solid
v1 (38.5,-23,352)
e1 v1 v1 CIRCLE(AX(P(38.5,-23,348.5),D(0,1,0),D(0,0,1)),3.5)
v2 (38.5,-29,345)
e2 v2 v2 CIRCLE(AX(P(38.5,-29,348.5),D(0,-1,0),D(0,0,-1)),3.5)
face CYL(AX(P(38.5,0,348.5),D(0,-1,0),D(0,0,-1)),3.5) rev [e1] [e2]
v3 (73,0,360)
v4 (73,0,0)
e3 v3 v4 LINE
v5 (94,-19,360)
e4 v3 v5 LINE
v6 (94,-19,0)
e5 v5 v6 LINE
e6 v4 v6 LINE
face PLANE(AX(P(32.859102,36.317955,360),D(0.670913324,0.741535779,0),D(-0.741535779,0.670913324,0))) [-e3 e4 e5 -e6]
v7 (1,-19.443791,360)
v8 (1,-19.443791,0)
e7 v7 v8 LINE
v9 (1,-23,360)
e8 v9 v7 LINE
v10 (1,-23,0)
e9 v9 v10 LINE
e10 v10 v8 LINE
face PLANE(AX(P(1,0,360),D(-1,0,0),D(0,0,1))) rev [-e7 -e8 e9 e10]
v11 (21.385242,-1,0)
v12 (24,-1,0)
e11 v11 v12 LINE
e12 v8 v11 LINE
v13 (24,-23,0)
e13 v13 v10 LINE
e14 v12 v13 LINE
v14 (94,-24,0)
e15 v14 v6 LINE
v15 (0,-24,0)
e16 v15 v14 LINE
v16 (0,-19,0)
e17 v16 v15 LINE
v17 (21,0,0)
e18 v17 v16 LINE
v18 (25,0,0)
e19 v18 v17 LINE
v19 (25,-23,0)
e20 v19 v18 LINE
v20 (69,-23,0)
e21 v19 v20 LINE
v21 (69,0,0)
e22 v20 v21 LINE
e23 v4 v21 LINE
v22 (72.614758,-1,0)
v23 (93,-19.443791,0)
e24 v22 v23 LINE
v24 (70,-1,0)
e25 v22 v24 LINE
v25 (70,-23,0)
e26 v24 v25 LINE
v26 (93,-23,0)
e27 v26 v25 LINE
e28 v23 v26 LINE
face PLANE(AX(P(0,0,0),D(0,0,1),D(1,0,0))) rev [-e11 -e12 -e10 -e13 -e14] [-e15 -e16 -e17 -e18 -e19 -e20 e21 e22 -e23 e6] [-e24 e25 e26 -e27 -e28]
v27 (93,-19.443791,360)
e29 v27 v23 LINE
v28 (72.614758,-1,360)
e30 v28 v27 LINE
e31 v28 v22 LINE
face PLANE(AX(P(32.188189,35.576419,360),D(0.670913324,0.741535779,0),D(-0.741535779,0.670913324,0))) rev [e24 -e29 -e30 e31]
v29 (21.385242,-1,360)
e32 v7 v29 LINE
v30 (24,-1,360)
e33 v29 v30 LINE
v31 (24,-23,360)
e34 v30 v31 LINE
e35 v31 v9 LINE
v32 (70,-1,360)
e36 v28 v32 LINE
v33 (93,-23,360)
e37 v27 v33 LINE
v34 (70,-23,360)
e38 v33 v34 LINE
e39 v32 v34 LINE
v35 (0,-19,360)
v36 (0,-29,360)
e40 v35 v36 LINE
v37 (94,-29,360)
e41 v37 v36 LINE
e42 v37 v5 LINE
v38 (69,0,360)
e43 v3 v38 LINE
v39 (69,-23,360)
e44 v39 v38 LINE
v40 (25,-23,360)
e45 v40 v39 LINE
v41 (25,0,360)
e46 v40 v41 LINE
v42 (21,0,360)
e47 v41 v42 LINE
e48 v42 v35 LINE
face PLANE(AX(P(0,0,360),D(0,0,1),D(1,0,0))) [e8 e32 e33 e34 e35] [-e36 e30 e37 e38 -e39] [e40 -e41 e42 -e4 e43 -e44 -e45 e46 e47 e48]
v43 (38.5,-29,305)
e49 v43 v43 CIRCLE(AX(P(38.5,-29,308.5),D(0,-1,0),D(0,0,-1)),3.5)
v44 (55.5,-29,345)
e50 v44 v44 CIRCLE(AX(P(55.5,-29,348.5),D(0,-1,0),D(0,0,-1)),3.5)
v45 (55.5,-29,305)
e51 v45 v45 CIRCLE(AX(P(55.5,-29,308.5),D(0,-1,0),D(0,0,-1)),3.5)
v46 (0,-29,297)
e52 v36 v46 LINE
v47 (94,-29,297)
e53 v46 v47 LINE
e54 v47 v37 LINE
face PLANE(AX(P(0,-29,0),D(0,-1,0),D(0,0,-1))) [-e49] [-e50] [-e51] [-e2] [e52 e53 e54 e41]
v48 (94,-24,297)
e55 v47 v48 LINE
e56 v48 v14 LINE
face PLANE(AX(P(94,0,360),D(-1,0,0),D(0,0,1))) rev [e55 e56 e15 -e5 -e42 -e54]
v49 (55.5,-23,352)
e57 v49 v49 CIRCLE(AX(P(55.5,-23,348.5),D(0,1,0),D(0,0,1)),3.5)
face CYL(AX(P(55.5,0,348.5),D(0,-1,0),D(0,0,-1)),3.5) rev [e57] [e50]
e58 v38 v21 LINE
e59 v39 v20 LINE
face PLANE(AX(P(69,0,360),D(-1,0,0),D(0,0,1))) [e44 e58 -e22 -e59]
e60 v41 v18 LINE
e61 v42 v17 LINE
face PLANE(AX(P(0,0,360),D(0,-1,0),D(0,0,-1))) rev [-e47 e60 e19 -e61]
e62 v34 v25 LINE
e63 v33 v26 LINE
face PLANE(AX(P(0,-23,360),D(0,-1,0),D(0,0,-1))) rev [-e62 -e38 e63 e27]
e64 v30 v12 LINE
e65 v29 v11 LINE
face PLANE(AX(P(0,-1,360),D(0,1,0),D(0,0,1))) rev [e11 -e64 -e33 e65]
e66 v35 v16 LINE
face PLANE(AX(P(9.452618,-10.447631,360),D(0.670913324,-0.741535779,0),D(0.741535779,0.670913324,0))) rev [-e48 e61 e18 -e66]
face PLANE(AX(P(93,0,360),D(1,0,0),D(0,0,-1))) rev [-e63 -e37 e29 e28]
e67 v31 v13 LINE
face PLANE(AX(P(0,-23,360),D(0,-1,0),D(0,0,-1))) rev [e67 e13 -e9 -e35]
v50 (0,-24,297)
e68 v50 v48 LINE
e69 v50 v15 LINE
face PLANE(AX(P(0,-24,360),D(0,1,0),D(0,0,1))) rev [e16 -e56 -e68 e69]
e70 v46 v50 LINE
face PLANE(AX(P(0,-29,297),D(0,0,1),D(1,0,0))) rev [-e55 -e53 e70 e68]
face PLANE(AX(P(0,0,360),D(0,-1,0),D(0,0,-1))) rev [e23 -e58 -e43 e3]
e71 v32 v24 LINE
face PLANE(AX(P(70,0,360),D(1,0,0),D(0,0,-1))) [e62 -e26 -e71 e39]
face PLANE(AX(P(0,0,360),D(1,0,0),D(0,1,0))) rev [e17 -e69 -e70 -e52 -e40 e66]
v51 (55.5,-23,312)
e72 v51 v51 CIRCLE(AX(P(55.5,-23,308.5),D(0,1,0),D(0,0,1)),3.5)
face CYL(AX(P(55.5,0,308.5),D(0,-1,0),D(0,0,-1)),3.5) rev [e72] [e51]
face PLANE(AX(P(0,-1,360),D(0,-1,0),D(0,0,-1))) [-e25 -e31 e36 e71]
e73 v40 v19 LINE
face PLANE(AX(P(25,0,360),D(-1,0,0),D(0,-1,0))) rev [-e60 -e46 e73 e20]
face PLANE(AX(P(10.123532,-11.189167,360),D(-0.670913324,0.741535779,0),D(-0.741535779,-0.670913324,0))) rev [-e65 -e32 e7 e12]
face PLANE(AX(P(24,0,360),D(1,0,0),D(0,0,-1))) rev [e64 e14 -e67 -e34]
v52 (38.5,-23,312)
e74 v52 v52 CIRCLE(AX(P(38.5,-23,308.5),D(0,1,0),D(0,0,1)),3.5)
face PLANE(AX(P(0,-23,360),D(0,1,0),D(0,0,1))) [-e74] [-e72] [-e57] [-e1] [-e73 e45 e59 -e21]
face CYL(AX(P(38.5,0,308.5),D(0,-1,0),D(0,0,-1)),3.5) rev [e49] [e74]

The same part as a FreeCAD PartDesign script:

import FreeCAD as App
import Part
import Sketcher

V = App.Vector

doc = App.newDocument("Part")
params = doc.addObject("Spreadsheet::Sheet", "Params")
for row, (alias, value) in enumerate([
    ("sketch1_width", "94 mm"),
    ("sketch1_height", "24 mm"),
    ("pad1_length", "360 mm"),
    ("sketch2_width", "21 mm"),
    ("sketch2_width2", "44 mm"),
    ("sketch2_height", "19 mm"),
    ("sketch2_height2", "23 mm"),
    ("pocket1_length", "360 mm"),
    ("sketch3_width", "23 mm"),
    ("sketch3_height", "22 mm"),
    ("pocket2_length", "360 mm"),
    ("sketch4_width", "23 mm"),
    ("sketch4_height", "22 mm"),
    ("pocket3_length", "360 mm"),
    ("sketch5_width", "94 mm"),
    ("sketch5_height", "63 mm"),
    ("pad2_length", "5 mm"),
    ("sketch6_diameter", "7 mm"),
], start=1):
    params.set(f"A{row}", alias)
    params.set(f"B{row}", "=" + value)
    params.setAlias(f"B{row}", alias)

body = doc.addObject("PartDesign::Body", "Body")

sketch1 = doc.addObject("Sketcher::SketchObject", "Sketch")
body.addObject(sketch1)
sketch1.AttachmentSupport = (doc.XY_Plane, [""])
sketch1.MapMode = "FlatFace"
sketch1.addGeometry(Part.LineSegment(V(0, 0, 0), V(0, -24, 0)), False)
sketch1.addGeometry(Part.LineSegment(V(0, -24, 0), V(94, -24, 0)), False)
sketch1.addGeometry(Part.LineSegment(V(94, -24, 0), V(94, 0, 0)), False)
sketch1.addGeometry(Part.LineSegment(V(94, 0, 0), V(0, 0, 0)), False)
sketch1.addConstraint(Sketcher.Constraint("Coincident", 0, 2, 1, 1))
sketch1.addConstraint(Sketcher.Constraint("Coincident", 1, 2, 2, 1))
sketch1.addConstraint(Sketcher.Constraint("Coincident", 2, 2, 3, 1))
sketch1.addConstraint(Sketcher.Constraint("Coincident", 3, 2, 0, 1))
sketch1.addConstraint(Sketcher.Constraint("Vertical", 0))
sketch1.addConstraint(Sketcher.Constraint("Horizontal", 1))
sketch1.addConstraint(Sketcher.Constraint("Vertical", 2))
sketch1.addConstraint(Sketcher.Constraint("Horizontal", 3))
sketch1.addConstraint(Sketcher.Constraint("Coincident", 3, 2, -1, 1))
sketch1.addConstraint(Sketcher.Constraint("DistanceX", 1, 1, 1, 2, 94.0))
sketch1.addConstraint(Sketcher.Constraint("DistanceY", 0, 2, 0, 1, 24.0))
sketch1.setExpression("Constraints[9]", "Params.sketch1_width")
sketch1.setExpression("Constraints[10]", "Params.sketch1_height")
pad1 = doc.addObject("PartDesign::Pad", "Pad")
body.addObject(pad1)
pad1.Profile = sketch1
pad1.setExpression("Length", "Params.pad1_length")

sketch2 = doc.addObject("Sketcher::SketchObject", "Sketch001")
body.addObject(sketch2)
sketch2.AttachmentSupport = (doc.XY_Plane, [""])
sketch2.MapMode = "FlatFace"
sketch2.addGeometry(Part.LineSegment(V(94, 0, 0), V(94, -19, 0)), False)
sketch2.addGeometry(Part.LineSegment(V(94, -19, 0), V(73, 0, 0)), False)
sketch2.addGeometry(Part.LineSegment(V(73, 0, 0), V(94, 0, 0)), False)
sketch2.addGeometry(Part.LineSegment(V(69, 0, 0), V(69, -23, 0)), False)
sketch2.addGeometry(Part.LineSegment(V(69, -23, 0), V(25, -23, 0)), False)
sketch2.addGeometry(Part.LineSegment(V(25, -23, 0), V(25, 0, 0)), False)
sketch2.addGeometry(Part.LineSegment(V(25, 0, 0), V(69, 0, 0)), False)
sketch2.addGeometry(Part.LineSegment(V(0, 0, 0), V(21, 0, 0)), False)
sketch2.addGeometry(Part.LineSegment(V(21, 0, 0), V(0, -19, 0)), False)
sketch2.addGeometry(Part.LineSegment(V(0, -19, 0), V(0, 0, 0)), False)
sketch2.addConstraint(Sketcher.Constraint("Coincident", 0, 2, 1, 1))
sketch2.addConstraint(Sketcher.Constraint("Coincident", 1, 2, 2, 1))
sketch2.addConstraint(Sketcher.Constraint("Coincident", 2, 2, 0, 1))
sketch2.addConstraint(Sketcher.Constraint("Coincident", 3, 2, 4, 1))
sketch2.addConstraint(Sketcher.Constraint("Coincident", 4, 2, 5, 1))
sketch2.addConstraint(Sketcher.Constraint("Coincident", 5, 2, 6, 1))
sketch2.addConstraint(Sketcher.Constraint("Coincident", 6, 2, 3, 1))
sketch2.addConstraint(Sketcher.Constraint("Coincident", 7, 2, 8, 1))
sketch2.addConstraint(Sketcher.Constraint("Coincident", 8, 2, 9, 1))
sketch2.addConstraint(Sketcher.Constraint("Coincident", 9, 2, 7, 1))
sketch2.addConstraint(Sketcher.Constraint("Vertical", 0))
sketch2.addConstraint(Sketcher.Constraint("Horizontal", 2))
sketch2.addConstraint(Sketcher.Constraint("Vertical", 3))
sketch2.addConstraint(Sketcher.Constraint("Horizontal", 4))
sketch2.addConstraint(Sketcher.Constraint("Vertical", 5))
sketch2.addConstraint(Sketcher.Constraint("Horizontal", 6))
sketch2.addConstraint(Sketcher.Constraint("Horizontal", 7))
sketch2.addConstraint(Sketcher.Constraint("Vertical", 9))
sketch2.addConstraint(Sketcher.Constraint("Coincident", 9, 2, -1, 1))
sketch2.addConstraint(Sketcher.Constraint("PointOnObject", 1, 2, -1))
sketch2.addConstraint(Sketcher.Constraint("PointOnObject", 5, 2, -1))
sketch2.addConstraint(Sketcher.Constraint("Horizontal", 0, 2, 8, 2))
sketch2.addConstraint(Sketcher.Constraint("Equal", 2, 7))
sketch2.addConstraint(Sketcher.Constraint("DistanceX", 2, 1, 2, 2, 21.0))
sketch2.addConstraint(Sketcher.Constraint("DistanceX", 4, 2, 4, 1, 44.0))
sketch2.addConstraint(Sketcher.Constraint("DistanceY", 0, 2, 0, 1, 19.0))
sketch2.addConstraint(Sketcher.Constraint("DistanceY", 3, 2, 3, 1, 23.0))
sketch2.addConstraint(Sketcher.Constraint("DistanceX", -1, 1, 0, 2, 94.0))
sketch2.addConstraint(Sketcher.Constraint("DistanceX", -1, 1, 3, 2, 69.0))
sketch2.setExpression("Constraints[23]", "Params.sketch2_width")
sketch2.setExpression("Constraints[24]", "Params.sketch2_width2")
sketch2.setExpression("Constraints[25]", "Params.sketch2_height")
sketch2.setExpression("Constraints[26]", "Params.sketch2_height2")
pocket1 = doc.addObject("PartDesign::Pocket", "Pocket")
body.addObject(pocket1)
pocket1.Profile = sketch2
pocket1.setExpression("Length", "Params.pocket1_length")
pocket1.Reversed = True

sketch3 = doc.addObject("Sketcher::SketchObject", "Sketch002")
body.addObject(sketch3)
sketch3.AttachmentSupport = (doc.XY_Plane, [""])
sketch3.MapMode = "FlatFace"
sketch3.addGeometry(Part.LineSegment(V(70, -23, 0), V(70, -1, 0)), False)
sketch3.addGeometry(Part.LineSegment(V(70, -1, 0), V(72.6, -1, 0)), False)
sketch3.addGeometry(Part.LineSegment(V(72.6, -1, 0), V(93, -19.4, 0)), False)
sketch3.addGeometry(Part.LineSegment(V(93, -19.4, 0), V(93, -23, 0)), False)
sketch3.addGeometry(Part.LineSegment(V(93, -23, 0), V(70, -23, 0)), False)
sketch3.addConstraint(Sketcher.Constraint("Coincident", 0, 2, 1, 1))
sketch3.addConstraint(Sketcher.Constraint("Coincident", 1, 2, 2, 1))
sketch3.addConstraint(Sketcher.Constraint("Coincident", 2, 2, 3, 1))
sketch3.addConstraint(Sketcher.Constraint("Coincident", 3, 2, 4, 1))
sketch3.addConstraint(Sketcher.Constraint("Coincident", 4, 2, 0, 1))
sketch3.addConstraint(Sketcher.Constraint("Vertical", 0))
sketch3.addConstraint(Sketcher.Constraint("Horizontal", 1))
sketch3.addConstraint(Sketcher.Constraint("Vertical", 3))
sketch3.addConstraint(Sketcher.Constraint("Horizontal", 4))
sketch3.addConstraint(Sketcher.Constraint("DistanceX", 4, 2, 4, 1, 23.0))
sketch3.addConstraint(Sketcher.Constraint("DistanceY", 0, 1, 0, 2, 22.0))
sketch3.addConstraint(Sketcher.Constraint("DistanceX", -1, 1, 0, 2, 70.0))
sketch3.addConstraint(Sketcher.Constraint("DistanceY", 0, 2, -1, 1, 1.0))
sketch3.addConstraint(Sketcher.Constraint("DistanceY", 3, 2, 3, 1, 3.556209))
sketch3.addConstraint(Sketcher.Constraint("Distance", 2, 27.490571))
sketch3.setExpression("Constraints[9]", "Params.sketch3_width")
sketch3.setExpression("Constraints[10]", "Params.sketch3_height")
pocket2 = doc.addObject("PartDesign::Pocket", "Pocket001")
body.addObject(pocket2)
pocket2.Profile = sketch3
pocket2.setExpression("Length", "Params.pocket2_length")
pocket2.Reversed = True

sketch4 = doc.addObject("Sketcher::SketchObject", "Sketch003")
body.addObject(sketch4)
sketch4.AttachmentSupport = (doc.XY_Plane, [""])
sketch4.MapMode = "FlatFace"
sketch4.addGeometry(Part.LineSegment(V(1, -19.4, 0), V(21.4, -1, 0)), False)
sketch4.addGeometry(Part.LineSegment(V(21.4, -1, 0), V(24, -1, 0)), False)
sketch4.addGeometry(Part.LineSegment(V(24, -1, 0), V(24, -23, 0)), False)
sketch4.addGeometry(Part.LineSegment(V(24, -23, 0), V(1, -23, 0)), False)
sketch4.addGeometry(Part.LineSegment(V(1, -23, 0), V(1, -19.4, 0)), False)
sketch4.addConstraint(Sketcher.Constraint("Coincident", 0, 2, 1, 1))
sketch4.addConstraint(Sketcher.Constraint("Coincident", 1, 2, 2, 1))
sketch4.addConstraint(Sketcher.Constraint("Coincident", 2, 2, 3, 1))
sketch4.addConstraint(Sketcher.Constraint("Coincident", 3, 2, 4, 1))
sketch4.addConstraint(Sketcher.Constraint("Coincident", 4, 2, 0, 1))
sketch4.addConstraint(Sketcher.Constraint("Horizontal", 1))
sketch4.addConstraint(Sketcher.Constraint("Vertical", 2))
sketch4.addConstraint(Sketcher.Constraint("Horizontal", 3))
sketch4.addConstraint(Sketcher.Constraint("Vertical", 4))
sketch4.addConstraint(Sketcher.Constraint("DistanceX", 3, 2, 3, 1, 23.0))
sketch4.addConstraint(Sketcher.Constraint("DistanceY", 2, 2, 2, 1, 22.0))
sketch4.addConstraint(Sketcher.Constraint("DistanceY", 0, 2, -1, 1, 1.0))
sketch4.addConstraint(Sketcher.Constraint("DistanceX", -1, 1, 1, 2, 24.0))
sketch4.addConstraint(Sketcher.Constraint("DistanceY", 4, 1, 4, 2, 3.556209))
sketch4.addConstraint(Sketcher.Constraint("Distance", 0, 27.490571))
sketch4.setExpression("Constraints[9]", "Params.sketch4_width")
sketch4.setExpression("Constraints[10]", "Params.sketch4_height")
pocket3 = doc.addObject("PartDesign::Pocket", "Pocket002")
body.addObject(pocket3)
pocket3.Profile = sketch4
pocket3.setExpression("Length", "Params.pocket3_length")
pocket3.Reversed = True

sketch5 = doc.addObject("Sketcher::SketchObject", "Sketch004")
body.addObject(sketch5)
sketch5.AttachmentSupport = (doc.XZ_Plane, [""])
sketch5.MapMode = "FlatFace"
sketch5.AttachmentOffset = App.Placement(V(0, 0, 24), App.Rotation())
sketch5.addGeometry(Part.LineSegment(V(0, 360, 0), V(0, 297, 0)), False)
sketch5.addGeometry(Part.LineSegment(V(0, 297, 0), V(94, 297, 0)), False)
sketch5.addGeometry(Part.LineSegment(V(94, 297, 0), V(94, 360, 0)), False)
sketch5.addGeometry(Part.LineSegment(V(94, 360, 0), V(0, 360, 0)), False)
sketch5.addConstraint(Sketcher.Constraint("Coincident", 0, 2, 1, 1))
sketch5.addConstraint(Sketcher.Constraint("Coincident", 1, 2, 2, 1))
sketch5.addConstraint(Sketcher.Constraint("Coincident", 2, 2, 3, 1))
sketch5.addConstraint(Sketcher.Constraint("Coincident", 3, 2, 0, 1))
sketch5.addConstraint(Sketcher.Constraint("Vertical", 0))
sketch5.addConstraint(Sketcher.Constraint("Horizontal", 1))
sketch5.addConstraint(Sketcher.Constraint("Vertical", 2))
sketch5.addConstraint(Sketcher.Constraint("Horizontal", 3))
sketch5.addConstraint(Sketcher.Constraint("PointOnObject", 0, 2, -2))
sketch5.addConstraint(Sketcher.Constraint("DistanceX", 1, 1, 1, 2, 94.0))
sketch5.addConstraint(Sketcher.Constraint("DistanceY", 0, 2, 0, 1, 63.0))
sketch5.addConstraint(Sketcher.Constraint("DistanceY", -1, 1, 0, 2, 297.0))
sketch5.setExpression("Constraints[9]", "Params.sketch5_width")
sketch5.setExpression("Constraints[10]", "Params.sketch5_height")
pad2 = doc.addObject("PartDesign::Pad", "Pad001")
body.addObject(pad2)
pad2.Profile = sketch5
pad2.setExpression("Length", "Params.pad2_length")

sketch6 = doc.addObject("Sketcher::SketchObject", "Sketch005")
body.addObject(sketch6)
sketch6.AttachmentSupport = (doc.XZ_Plane, [""])
sketch6.MapMode = "FlatFace"
sketch6.AttachmentOffset = App.Placement(V(0, 0, 29), App.Rotation())
sketch6.addGeometry(Part.Circle(V(38.5, 348.5, 0), V(0, 0, 1), 3.5), False)
sketch6.addGeometry(Part.Circle(V(55.5, 348.5, 0), V(0, 0, 1), 3.5), False)
sketch6.addGeometry(Part.Circle(V(38.5, 308.5, 0), V(0, 0, 1), 3.5), False)
sketch6.addGeometry(Part.Circle(V(55.5, 308.5, 0), V(0, 0, 1), 3.5), False)
sketch6.addConstraint(Sketcher.Constraint("Equal", 0, 1))
sketch6.addConstraint(Sketcher.Constraint("Equal", 1, 2))
sketch6.addConstraint(Sketcher.Constraint("Equal", 2, 3))
sketch6.addConstraint(Sketcher.Constraint("Horizontal", 0, 3, 1, 3))
sketch6.addConstraint(Sketcher.Constraint("Horizontal", 2, 3, 3, 3))
sketch6.addConstraint(Sketcher.Constraint("Vertical", 0, 3, 2, 3))
sketch6.addConstraint(Sketcher.Constraint("Vertical", 1, 3, 3, 3))
sketch6.addConstraint(Sketcher.Constraint("Diameter", 0, 7.0))
sketch6.addConstraint(Sketcher.Constraint("DistanceX", 0, 3, 1, 3, 17.0))
sketch6.addConstraint(Sketcher.Constraint("DistanceY", 2, 3, 0, 3, 40.0))
sketch6.addConstraint(Sketcher.Constraint("DistanceX", -1, 1, 0, 3, 38.5))
sketch6.addConstraint(Sketcher.Constraint("DistanceY", -1, 1, 0, 3, 348.5))
sketch6.setExpression("Constraints[7]", "Params.sketch6_diameter")
pocket4 = doc.addObject("PartDesign::Pocket", "Pocket003")
body.addObject(pocket4)
pocket4.Profile = sketch6
pocket4.Type = "ThroughAll"

doc.recompute()
